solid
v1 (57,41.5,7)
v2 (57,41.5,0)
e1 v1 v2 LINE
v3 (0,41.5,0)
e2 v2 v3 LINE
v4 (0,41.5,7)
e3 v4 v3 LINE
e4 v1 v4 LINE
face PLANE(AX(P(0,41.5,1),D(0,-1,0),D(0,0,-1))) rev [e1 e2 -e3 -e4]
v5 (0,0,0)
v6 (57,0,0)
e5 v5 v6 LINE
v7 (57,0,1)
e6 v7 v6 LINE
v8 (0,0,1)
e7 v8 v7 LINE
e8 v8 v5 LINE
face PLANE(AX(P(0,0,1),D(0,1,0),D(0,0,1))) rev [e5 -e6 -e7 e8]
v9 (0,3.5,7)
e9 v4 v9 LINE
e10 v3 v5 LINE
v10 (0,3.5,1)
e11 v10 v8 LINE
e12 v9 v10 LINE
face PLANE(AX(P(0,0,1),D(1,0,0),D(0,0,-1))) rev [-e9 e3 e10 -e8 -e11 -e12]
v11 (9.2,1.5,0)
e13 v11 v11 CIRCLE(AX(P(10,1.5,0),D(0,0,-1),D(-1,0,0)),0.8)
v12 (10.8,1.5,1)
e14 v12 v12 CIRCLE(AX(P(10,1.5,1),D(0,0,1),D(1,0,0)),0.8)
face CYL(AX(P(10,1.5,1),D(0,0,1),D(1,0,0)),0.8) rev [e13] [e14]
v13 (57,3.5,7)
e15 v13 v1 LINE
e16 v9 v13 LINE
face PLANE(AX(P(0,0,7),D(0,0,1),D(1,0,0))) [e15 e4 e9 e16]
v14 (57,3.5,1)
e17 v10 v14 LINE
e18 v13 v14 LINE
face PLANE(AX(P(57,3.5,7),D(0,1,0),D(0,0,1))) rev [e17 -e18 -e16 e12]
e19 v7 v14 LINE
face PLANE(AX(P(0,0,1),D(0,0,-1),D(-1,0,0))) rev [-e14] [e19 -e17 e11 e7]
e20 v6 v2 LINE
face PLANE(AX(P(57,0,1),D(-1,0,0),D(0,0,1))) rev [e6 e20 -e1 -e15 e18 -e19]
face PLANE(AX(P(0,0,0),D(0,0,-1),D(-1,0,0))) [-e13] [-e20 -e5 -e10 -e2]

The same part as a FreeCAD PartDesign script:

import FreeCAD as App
import Part
import Sketcher
from FreeCAD import Vector
Q = App.Units.Quantity


def add_polygon(sketch, points):
    """Adds a closed chain of lines whose ends are joined by coincident constraints."""
    first, n = sketch.GeometryCount, len(points)
    for a, b in zip(points, points[1:] + points[:1]):
        sketch.addGeometry(Part.LineSegment(App.Vector(*a, 0), App.Vector(*b, 0)), False)
    for i in range(n):
        sketch.addConstraint(Sketcher.Constraint("Coincident", first + i, 2, first + (i + 1) % n, 1))

doc = App.newDocument("Part")
body = doc.addObject("PartDesign::Body", "Body")

sketch1 = doc.addObject("Sketcher::SketchObject", "Sketch")
body.addObject(sketch1)
sketch1.AttachmentSupport = (doc.XY_Plane, [""])
sketch1.MapMode = "FlatFace"
add_polygon(sketch1, [(0, 42), (0, 0), (57, 0), (57, 42)])
sketch1.addConstraint(Sketcher.Constraint("Vertical", 0))
sketch1.addConstraint(Sketcher.Constraint("Horizontal", 1))
sketch1.addConstraint(Sketcher.Constraint("Vertical", 2))
sketch1.addConstraint(Sketcher.Constraint("Horizontal", 3))
sketch1.addConstraint(Sketcher.Constraint("Coincident", 0, 2, -1, 1))
sketch1.addConstraint(Sketcher.Constraint("DistanceX", 1, 1, 1, 2, Q("57 mm")))
sketch1.addConstraint(Sketcher.Constraint("DistanceY", 0, 2, 0, 1, Q("41.5 mm")))
pad1 = doc.addObject("PartDesign::Pad", "Pad")
body.addObject(pad1)
pad1.Profile = sketch1
pad1.Length = 1

sketch2 = doc.addObject("Sketcher::SketchObject", "Sketch001")
body.addObject(sketch2)
sketch2.AttachmentSupport = (doc.XY_Plane, [""])
sketch2.MapMode = "FlatFace"
sketch2.AttachmentOffset = App.Placement(Vector(0, 0, 1), App.Rotation())
add_polygon(sketch2, [(0, 42), (0, 4), (57, 4), (57, 42)])
sketch2.addConstraint(Sketcher.Constraint("Vertical", 0))
sketch2.addConstraint(Sketcher.Constraint("Horizontal", 1))
sketch2.addConstraint(Sketcher.Constraint("Vertical", 2))
sketch2.addConstraint(Sketcher.Constraint("Horizontal", 3))
sketch2.addConstraint(Sketcher.Constraint("PointOnObject", 0, 2, -2))
sketch2.addConstraint(Sketcher.Constraint("DistanceX", 1, 1, 1, 2, Q("57 mm")))
sketch2.addConstraint(Sketcher.Constraint("DistanceY", 0, 2, 0, 1, Q("38 mm")))
sketch2.addConstraint(Sketcher.Constraint("DistanceY", -1, 1, 0, 2, Q("3.5 mm")))
pad2 = doc.addObject("PartDesign::Pad", "Pad001")
body.addObject(pad2)
pad2.Profile = sketch2
pad2.Length = 6

sketch3 = doc.addObject("Sketcher::SketchObject", "Sketch002")
body.addObject(sketch3)
sketch3.AttachmentSupport = (doc.XY_Plane, [""])
sketch3.MapMode = "FlatFace"
sketch3.AttachmentOffset = App.Placement(Vector(0, 0, 1), App.Rotation())
sketch3.addGeometry(Part.Circle(Vector(10, 1.5, 0), Vector(0, 0, 1), 0.8), False)
sketch3.addConstraint(Sketcher.Constraint("Diameter", 0, Q("1.6 mm")))
sketch3.addConstraint(Sketcher.Constraint("DistanceX", -1, 1, 0, 3, Q("10 mm")))
sketch3.addConstraint(Sketcher.Constraint("DistanceY", -1, 1, 0, 3, Q("1.5 mm")))
doc.recompute()
hole = doc.addObject("PartDesign::Hole", "Hole")
body.addObject(hole)
hole.Profile = sketch3
hole.ThreadType = "None"
hole.Diameter = 1.6
hole.DepthType = "ThroughAll"

doc.recompute()
